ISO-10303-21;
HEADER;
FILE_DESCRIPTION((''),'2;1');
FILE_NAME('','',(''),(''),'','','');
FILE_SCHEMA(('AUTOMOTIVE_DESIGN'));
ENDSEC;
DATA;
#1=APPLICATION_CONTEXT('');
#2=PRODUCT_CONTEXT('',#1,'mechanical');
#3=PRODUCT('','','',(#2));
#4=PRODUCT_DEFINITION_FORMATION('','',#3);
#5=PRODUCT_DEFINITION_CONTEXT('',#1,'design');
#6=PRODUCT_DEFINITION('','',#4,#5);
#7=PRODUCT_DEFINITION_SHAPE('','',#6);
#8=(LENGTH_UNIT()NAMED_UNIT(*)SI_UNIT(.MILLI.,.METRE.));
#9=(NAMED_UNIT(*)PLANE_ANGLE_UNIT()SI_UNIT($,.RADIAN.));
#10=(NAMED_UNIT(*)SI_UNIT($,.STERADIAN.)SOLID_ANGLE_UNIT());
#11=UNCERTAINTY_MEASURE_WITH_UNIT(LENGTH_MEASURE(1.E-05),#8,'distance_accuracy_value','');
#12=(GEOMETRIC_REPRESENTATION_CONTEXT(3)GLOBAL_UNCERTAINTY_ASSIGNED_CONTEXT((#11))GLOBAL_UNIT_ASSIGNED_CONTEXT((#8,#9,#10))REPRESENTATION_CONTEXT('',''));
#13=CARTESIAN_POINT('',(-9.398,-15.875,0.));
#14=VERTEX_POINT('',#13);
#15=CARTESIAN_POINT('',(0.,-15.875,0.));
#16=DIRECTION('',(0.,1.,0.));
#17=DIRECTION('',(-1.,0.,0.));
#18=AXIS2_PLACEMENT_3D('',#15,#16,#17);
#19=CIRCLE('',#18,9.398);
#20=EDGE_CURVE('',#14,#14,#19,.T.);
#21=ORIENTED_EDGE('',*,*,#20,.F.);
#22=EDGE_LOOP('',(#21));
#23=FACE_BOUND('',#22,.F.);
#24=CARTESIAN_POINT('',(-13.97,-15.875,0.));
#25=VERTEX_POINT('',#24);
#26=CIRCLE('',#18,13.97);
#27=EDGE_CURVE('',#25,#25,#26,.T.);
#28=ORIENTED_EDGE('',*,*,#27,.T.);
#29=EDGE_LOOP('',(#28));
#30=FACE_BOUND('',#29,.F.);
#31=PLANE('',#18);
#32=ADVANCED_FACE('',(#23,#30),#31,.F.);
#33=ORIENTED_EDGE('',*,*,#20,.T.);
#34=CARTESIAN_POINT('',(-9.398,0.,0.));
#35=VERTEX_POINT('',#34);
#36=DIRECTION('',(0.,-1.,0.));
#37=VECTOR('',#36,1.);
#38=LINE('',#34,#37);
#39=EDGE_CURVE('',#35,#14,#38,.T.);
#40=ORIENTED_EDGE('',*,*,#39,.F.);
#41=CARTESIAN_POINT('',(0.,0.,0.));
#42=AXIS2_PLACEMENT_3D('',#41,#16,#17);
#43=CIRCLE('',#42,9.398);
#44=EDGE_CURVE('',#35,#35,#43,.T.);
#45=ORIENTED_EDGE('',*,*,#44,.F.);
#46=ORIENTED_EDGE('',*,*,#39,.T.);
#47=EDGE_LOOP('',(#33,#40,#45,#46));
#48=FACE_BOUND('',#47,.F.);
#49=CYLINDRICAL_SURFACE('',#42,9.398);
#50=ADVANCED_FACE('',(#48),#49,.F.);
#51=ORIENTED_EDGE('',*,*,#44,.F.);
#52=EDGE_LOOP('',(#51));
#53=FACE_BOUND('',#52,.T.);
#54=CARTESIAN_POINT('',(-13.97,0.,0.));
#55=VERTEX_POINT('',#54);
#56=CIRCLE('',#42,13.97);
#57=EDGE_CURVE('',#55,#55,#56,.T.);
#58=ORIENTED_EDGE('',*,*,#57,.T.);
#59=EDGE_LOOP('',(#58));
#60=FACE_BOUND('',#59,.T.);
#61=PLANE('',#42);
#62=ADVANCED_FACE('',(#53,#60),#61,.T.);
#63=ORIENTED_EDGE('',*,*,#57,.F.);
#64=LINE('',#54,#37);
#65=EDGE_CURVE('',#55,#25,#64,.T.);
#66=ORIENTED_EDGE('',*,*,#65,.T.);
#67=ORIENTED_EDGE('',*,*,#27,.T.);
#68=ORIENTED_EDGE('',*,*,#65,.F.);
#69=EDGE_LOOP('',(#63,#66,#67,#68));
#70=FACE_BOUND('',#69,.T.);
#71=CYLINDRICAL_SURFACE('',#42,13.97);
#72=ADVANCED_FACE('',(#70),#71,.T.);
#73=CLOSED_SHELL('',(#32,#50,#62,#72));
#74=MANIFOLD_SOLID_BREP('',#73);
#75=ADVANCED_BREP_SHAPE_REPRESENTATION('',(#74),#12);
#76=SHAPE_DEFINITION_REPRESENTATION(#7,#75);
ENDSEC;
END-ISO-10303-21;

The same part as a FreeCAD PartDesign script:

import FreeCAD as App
import Part
import Sketcher
from FreeCAD import Vector
Q = App.Units.Quantity

doc = App.newDocument("Part")
body = doc.addObject("PartDesign::Body", "Body")

# Sketch on XZ plane
sketch1 = body.newObject("Sketcher::SketchObject", "Sketch")
sketch1.AttachmentSupport = (doc.getObject("XZ_Plane"), [""])
sketch1.MapMode = "FlatFace"
sketch1.addGeometry([
    Part.Circle(Vector(0, 0, 0), Vector(0, 0, 1), 14),
    Part.Circle(Vector(0, 0, 0), Vector(0, 0, 1), 9),
], False)
sketch1.addConstraint([
    Sketcher.Constraint("Coincident", 0, 3, -1, 1),
    Sketcher.Constraint("Coincident", 1, 3, -1, 1),
    Sketcher.Constraint("Diameter", 0, Q("1.1 in")),
    Sketcher.Constraint("Diameter", 1, Q("0.74 in")),
])
pad1 = body.newObject("PartDesign::Pad", "Pad")
pad1.Profile = sketch1
pad1.Length = Q("0.625 in")

doc.recompute()
